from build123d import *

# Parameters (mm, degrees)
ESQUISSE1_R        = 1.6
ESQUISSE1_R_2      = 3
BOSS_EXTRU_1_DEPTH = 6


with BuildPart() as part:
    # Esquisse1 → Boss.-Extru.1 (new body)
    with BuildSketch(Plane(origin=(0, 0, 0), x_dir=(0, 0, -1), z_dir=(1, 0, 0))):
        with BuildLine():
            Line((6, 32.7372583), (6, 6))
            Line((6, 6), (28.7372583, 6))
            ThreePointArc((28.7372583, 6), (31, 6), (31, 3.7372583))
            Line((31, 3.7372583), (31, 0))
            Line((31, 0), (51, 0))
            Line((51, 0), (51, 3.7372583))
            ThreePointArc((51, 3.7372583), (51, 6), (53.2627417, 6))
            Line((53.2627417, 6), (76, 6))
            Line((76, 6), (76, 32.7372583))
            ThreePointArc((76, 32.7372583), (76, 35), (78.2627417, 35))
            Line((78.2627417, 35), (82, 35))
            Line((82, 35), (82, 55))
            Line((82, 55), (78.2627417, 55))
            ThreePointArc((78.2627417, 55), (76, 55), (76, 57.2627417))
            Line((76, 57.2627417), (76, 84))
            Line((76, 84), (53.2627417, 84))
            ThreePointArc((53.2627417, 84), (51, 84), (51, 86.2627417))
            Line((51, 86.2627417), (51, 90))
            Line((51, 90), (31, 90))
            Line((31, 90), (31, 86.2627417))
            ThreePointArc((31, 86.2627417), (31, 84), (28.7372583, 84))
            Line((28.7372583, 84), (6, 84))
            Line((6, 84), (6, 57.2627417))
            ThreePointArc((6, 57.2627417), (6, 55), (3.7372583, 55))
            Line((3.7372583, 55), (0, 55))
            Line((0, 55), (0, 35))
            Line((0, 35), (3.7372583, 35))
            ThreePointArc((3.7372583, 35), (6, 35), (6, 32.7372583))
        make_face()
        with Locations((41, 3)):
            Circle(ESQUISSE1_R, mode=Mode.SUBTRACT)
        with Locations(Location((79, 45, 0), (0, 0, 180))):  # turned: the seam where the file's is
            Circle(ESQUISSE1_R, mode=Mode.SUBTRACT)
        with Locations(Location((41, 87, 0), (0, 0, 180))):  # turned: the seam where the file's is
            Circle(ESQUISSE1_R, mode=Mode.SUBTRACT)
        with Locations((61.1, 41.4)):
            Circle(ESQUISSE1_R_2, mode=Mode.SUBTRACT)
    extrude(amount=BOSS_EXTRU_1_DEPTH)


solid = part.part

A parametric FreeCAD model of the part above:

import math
import FreeCAD as App
import Part
import Sketcher

doc = App.newDocument("Part")
body = doc.addObject("PartDesign::Body", "Body")

# Sketch on YZ plane
sketch1 = doc.addObject("Sketcher::SketchObject", "Sketch")
body.addObject(sketch1)
sketch1.AttachmentSupport = (doc.YZ_Plane, [""])
sketch1.MapMode = "FlatFace"
sketch1.addGeometry(Part.LineSegment(App.Vector(32.7, -6, 0), App.Vector(6, -6, 0)), False)
sketch1.addGeometry(Part.LineSegment(App.Vector(6, -6, 0), App.Vector(6, -28.7, 0)), False)
sketch1.addGeometry(Part.ArcOfCircle(Part.Circle(App.Vector(4.9, -29.9, 0), App.Vector(0, 0, 1), 1.6), math.radians(-135), math.radians(45)), False)
sketch1.addGeometry(Part.LineSegment(App.Vector(3.7, -31, 0), App.Vector(0, -31, 0)), False)
sketch1.addGeometry(Part.LineSegment(App.Vector(0, -31, 0), App.Vector(0, -51, 0)), False)
sketch1.addGeometry(Part.LineSegment(App.Vector(0, -51, 0), App.Vector(3.7, -51, 0)), False)
sketch1.addGeometry(Part.ArcOfCircle(Part.Circle(App.Vector(4.9, -52.1, 0), App.Vector(0, 0, 1), 1.6), math.radians(-45), math.radians(135)), False)
sketch1.addGeometry(Part.LineSegment(App.Vector(6, -53.3, 0), App.Vector(6, -76, 0)), False)
sketch1.addGeometry(Part.LineSegment(App.Vector(6, -76, 0), App.Vector(32.7, -76, 0)), False)
sketch1.addGeometry(Part.ArcOfCircle(Part.Circle(App.Vector(33.9, -77.1, 0), App.Vector(0, 0, 1), 1.6), math.radians(-45), math.radians(135)), False)
sketch1.addGeometry(Part.LineSegment(App.Vector(35, -78.3, 0), App.Vector(35, -82, 0)), False)
sketch1.addGeometry(Part.LineSegment(App.Vector(35, -82, 0), App.Vector(55, -82, 0)), False)
sketch1.addGeometry(Part.LineSegment(App.Vector(55, -82, 0), App.Vector(55, -78.3, 0)), False)
sketch1.addGeometry(Part.ArcOfCircle(Part.Circle(App.Vector(56.1, -77.1, 0), App.Vector(0, 0, 1), 1.6), math.radians(45), math.radians(225)), False)
sketch1.addGeometry(Part.LineSegment(App.Vector(57.3, -76, 0), App.Vector(84, -76, 0)), False)
sketch1.addGeometry(Part.LineSegment(App.Vector(84, -76, 0), App.Vector(84, -53.3, 0)), False)
sketch1.addGeometry(Part.ArcOfCircle(Part.Circle(App.Vector(85.1, -52.1, 0), App.Vector(0, 0, 1), 1.6), math.radians(45), math.radians(225)), False)
sketch1.addGeometry(Part.LineSegment(App.Vector(86.3, -51, 0), App.Vector(90, -51, 0)), False)
sketch1.addGeometry(Part.LineSegment(App.Vector(90, -51, 0), App.Vector(90, -31, 0)), False)
sketch1.addGeometry(Part.LineSegment(App.Vector(90, -31, 0), App.Vector(86.3, -31, 0)), False)
sketch1.addGeometry(Part.ArcOfCircle(Part.Circle(App.Vector(85.1, -29.9, 0), App.Vector(0, 0, 1), 1.6), math.radians(135), math.radians(315)), False)
sketch1.addGeometry(Part.LineSegment(App.Vector(84, -28.7, 0), App.Vector(84, -6, 0)), False)
sketch1.addGeometry(Part.LineSegment(App.Vector(84, -6, 0), App.Vector(57.3, -6, 0)), False)
sketch1.addGeometry(Part.ArcOfCircle(Part.Circle(App.Vector(56.1, -4.9, 0), App.Vector(0, 0, 1), 1.6), math.radians(135), math.radians(315)), False)
sketch1.addGeometry(Part.LineSegment(App.Vector(55, -3.7, 0), App.Vector(55, 0, 0)), False)
sketch1.addGeometry(Part.LineSegment(App.Vector(55, 0, 0), App.Vector(35, 0, 0)), False)
sketch1.addGeometry(Part.LineSegment(App.Vector(35, 0, 0), App.Vector(35, -3.7, 0)), False)
sketch1.addGeometry(Part.ArcOfCircle(Part.Circle(App.Vector(33.9, -4.9, 0), App.Vector(0, 0, 1), 1.6), math.radians(-135), math.radians(45)), False)
sketch1.addGeometry(Part.Circle(App.Vector(3, -41, 0), App.Vector(0, 0, 1), 1.6), False)
sketch1.addGeometry(Part.Circle(App.Vector(41.4, -61.1, 0), App.Vector(0, 0, 1), 3), False)
sketch1.addGeometry(Part.Circle(App.Vector(45, -79, 0), App.Vector(0, 0, 1), 1.6), False)
sketch1.addGeometry(Part.Circle(App.Vector(87, -41, 0), App.Vector(0, 0, 1), 1.6), False)
sketch1.addConstraint(Sketcher.Constraint("Coincident", 0, 2, 1, 1))
sketch1.addConstraint(Sketcher.Constraint("Coincident", 1, 2, 2, 2))
sketch1.addConstraint(Sketcher.Constraint("Coincident", 2, 1, 3, 1))
sketch1.addConstraint(Sketcher.Constraint("Coincident", 3, 2, 4, 1))
sketch1.addConstraint(Sketcher.Constraint("Coincident", 4, 2, 5, 1))
sketch1.addConstraint(Sketcher.Constraint("Coincident", 5, 2, 6, 2))
sketch1.addConstraint(Sketcher.Constraint("Coincident", 6, 1, 7, 1))
sketch1.addConstraint(Sketcher.Constraint("Coincident", 7, 2, 8, 1))
sketch1.addConstraint(Sketcher.Constraint("Coincident", 8, 2, 9, 2))
sketch1.addConstraint(Sketcher.Constraint("Coincident", 9, 1, 10, 1))
sketch1.addConstraint(Sketcher.Constraint("Coincident", 10, 2, 11, 1))
sketch1.addConstraint(Sketcher.Constraint("Coincident", 11, 2, 12, 1))
sketch1.addConstraint(Sketcher.Constraint("Coincident", 12, 2, 13, 2))
sketch1.addConstraint(Sketcher.Constraint("Coincident", 13, 1, 14, 1))
sketch1.addConstraint(Sketcher.Constraint("Coincident", 14, 2, 15, 1))
sketch1.addConstraint(Sketcher.Constraint("Coincident", 15, 2, 16, 2))
sketch1.addConstraint(Sketcher.Constraint("Coincident", 16, 1, 17, 1))
sketch1.addConstraint(Sketcher.Constraint("Coincident", 17, 2, 18, 1))
sketch1.addConstraint(Sketcher.Constraint("Coincident", 18, 2, 19, 1))
sketch1.addConstraint(Sketcher.Constraint("Coincident", 19, 2, 20, 2))
sketch1.addConstraint(Sketcher.Constraint("Coincident", 20, 1, 21, 1))
sketch1.addConstraint(Sketcher.Constraint("Coincident", 21, 2, 22, 1))
sketch1.addConstraint(Sketcher.Constraint("Coincident", 22, 2, 23, 2))
sketch1.addConstraint(Sketcher.Constraint("Coincident", 23, 1, 24, 1))
sketch1.addConstraint(Sketcher.Constraint("Coincident", 24, 2, 25, 1))
sketch1.addConstraint(Sketcher.Constraint("Coincident", 25, 2, 26, 1))
sketch1.addConstraint(Sketcher.Constraint("Coincident", 26, 2, 27, 2))
sketch1.addConstraint(Sketcher.Constraint("Coincident", 27, 1, 0, 1))
sketch1.addConstraint(Sketcher.Constraint("Horizontal", 0))
sketch1.addConstraint(Sketcher.Constraint("Vertical", 1))
sketch1.addConstraint(Sketcher.Constraint("Horizontal", 3))
sketch1.addConstraint(Sketcher.Constraint("Vertical", 4))
sketch1.addConstraint(Sketcher.Constraint("Horizontal", 5))
sketch1.addConstraint(Sketcher.Constraint("Vertical", 7))
sketch1.addConstraint(Sketcher.Constraint("Horizontal", 8))
sketch1.addConstraint(Sketcher.Constraint("Vertical", 10))
sketch1.addConstraint(Sketcher.Constraint("Horizontal", 11))
sketch1.addConstraint(Sketcher.Constraint("Vertical", 12))
sketch1.addConstraint(Sketcher.Constraint("Horizontal", 14))
sketch1.addConstraint(Sketcher.Constraint("Vertical", 15))
sketch1.addConstraint(Sketcher.Constraint("Horizontal", 17))
sketch1.addConstraint(Sketcher.Constraint("Vertical", 18))
sketch1.addConstraint(Sketcher.Constraint("Horizontal", 19))
sketch1.addConstraint(Sketcher.Constraint("Vertical", 21))
sketch1.addConstraint(Sketcher.Constraint("Horizontal", 22))
sketch1.addConstraint(Sketcher.Constraint("Vertical", 24))
sketch1.addConstraint(Sketcher.Constraint("Horizontal", 25))
sketch1.addConstraint(Sketcher.Constraint("Vertical", 26))
sketch1.addConstraint(Sketcher.Constraint("Equal", 2, 6))
sketch1.addConstraint(Sketcher.Constraint("Equal", 6, 9))
sketch1.addConstraint(Sketcher.Constraint("Equal", 9, 13))
sketch1.addConstraint(Sketcher.Constraint("Equal", 13, 16))
sketch1.addConstraint(Sketcher.Constraint("Equal", 16, 20))
sketch1.addConstraint(Sketcher.Constraint("Equal", 20, 23))
sketch1.addConstraint(Sketcher.Constraint("Equal", 23, 27))
sketch1.addConstraint(Sketcher.Constraint("Equal", 27, 28))
sketch1.addConstraint(Sketcher.Constraint("Equal", 28, 30))
sketch1.addConstraint(Sketcher.Constraint("Equal", 30, 31))
sketch1.addConstraint(Sketcher.Constraint("PointOnObject", 3, 2, -2))
sketch1.addConstraint(Sketcher.Constraint("PointOnObject", 24, 2, -1))
sketch1.addConstraint(Sketcher.Constraint("Horizontal", 9, 3, 13, 3))
sketch1.addConstraint(Sketcher.Constraint("Horizontal", 6, 3, 16, 3))
sketch1.addConstraint(Sketcher.Constraint("Horizontal", 2, 3, 20, 3))
sketch1.addConstraint(Sketcher.Constraint("Horizontal", 23, 3, 27, 3))
sketch1.addConstraint(Sketcher.Constraint("Horizontal", 28, 3, 31, 3))
sketch1.addConstraint(Sketcher.Constraint("Horizontal", 9, 1, 12, 2))
sketch1.addConstraint(Sketcher.Constraint("Horizontal", 8, 2, 13, 1))
sketch1.addConstraint(Sketcher.Constraint("Horizontal", 6, 1, 15, 2))
sketch1.addConstraint(Sketcher.Constraint("Horizontal", 5, 2, 16, 1))
sketch1.addConstraint(Sketcher.Constraint("Horizontal", 3, 2, 18, 2))
sketch1.addConstraint(Sketcher.Constraint("Horizontal", 1, 2, 20, 1))
sketch1.addConstraint(Sketcher.Constraint("Horizontal", 0, 2, 21, 2))
sketch1.addConstraint(Sketcher.Constraint("Horizontal", 23, 1, 26, 2))
sketch1.addConstraint(Sketcher.Constraint("Vertical", 2, 3, 6, 3))
sketch1.addConstraint(Sketcher.Constraint("Vertical", 16, 3, 20, 3))
sketch1.addConstraint(Sketcher.Constraint("Vertical", 13, 3, 23, 3))
sketch1.addConstraint(Sketcher.Constraint("Vertical", 9, 3, 27, 3))
sketch1.addConstraint(Sketcher.Constraint("Vertical", 2, 1, 5, 2))
sketch1.addConstraint(Sketcher.Constraint("Vertical", 1, 2, 6, 1))
sketch1.addConstraint(Sketcher.Constraint("Vertical", 13, 1, 22, 2))
sketch1.addConstraint(Sketcher.Constraint("Vertical", 12, 2, 23, 1))
sketch1.addConstraint(Sketcher.Constraint("Equal", 8, 14))
sketch1.addConstraint(Sketcher.Constraint("Equal", 5, 17))
sketch1.addConstraint(Sketcher.Constraint("Equal", 25, 4))
sketch1.addConstraint(Sketcher.Constraint("Equal", 1, 7))
sketch1.addConstraint(Sketcher.Constraint("Equal", 19, 10))
sketch1.addConstraint(Sketcher.Constraint("Equal", 12, 24))
sketch1.addConstraint(Sketcher.Constraint("Diameter", 29, 6.0))
sketch1.addConstraint(Sketcher.Constraint("Diameter", 28, 3.2))
sketch1.addConstraint(Sketcher.Constraint("DistanceX", 11, 1, 11, 2, 20.0))
sketch1.addConstraint(Sketcher.Constraint("DistanceX", -1, 1, 28, 3, 3.0))
sketch1.addConstraint(Sketcher.Constraint("DistanceY", 28, 3, -1, 1, 41.0))
sketch1.addConstraint(Sketcher.Constraint("DistanceX", -1, 1, 30, 3, 45.0))
sketch1.addConstraint(Sketcher.Constraint("DistanceY", 30, 3, -1, 1, 79.0))
sketch1.addConstraint(Sketcher.Constraint("DistanceX", -1, 1, 31, 3, 87.0))
sketch1.addConstraint(Sketcher.Constraint("DistanceX", -1, 1, 0, 2, 6.0))
sketch1.addConstraint(Sketcher.Constraint("DistanceY", 0, 2, -1, 1, 6.0))
sketch1.addConstraint(Sketcher.Constraint("DistanceY", 2, 1, -1, 1, 31.0))
sketch1.addConstraint(Sketcher.Constraint("DistanceX", -1, 1, 9, 1, 35.0))
sketch1.addConstraint(Sketcher.Constraint("DistanceX", 6, 3, 9, 3, 29.0))
sketch1.addConstraint(Sketcher.Constraint("DistanceY", 9, 3, 6, 3, 25.0))
sketch1.addConstraint(Sketcher.Constraint("DistanceX", -1, 1, 29, 3, 41.4))
sketch1.addConstraint(Sketcher.Constraint("DistanceY", 29, 3, -1, 1, 61.1))
sketch1.addConstraint(Sketcher.Constraint("DistanceX", -1, 1, 2, 3, 4.868629))
pad1 = doc.addObject("PartDesign::Pad", "Pad")
body.addObject(pad1)
pad1.Profile = sketch1
pad1.Length = 6

doc.recompute()
